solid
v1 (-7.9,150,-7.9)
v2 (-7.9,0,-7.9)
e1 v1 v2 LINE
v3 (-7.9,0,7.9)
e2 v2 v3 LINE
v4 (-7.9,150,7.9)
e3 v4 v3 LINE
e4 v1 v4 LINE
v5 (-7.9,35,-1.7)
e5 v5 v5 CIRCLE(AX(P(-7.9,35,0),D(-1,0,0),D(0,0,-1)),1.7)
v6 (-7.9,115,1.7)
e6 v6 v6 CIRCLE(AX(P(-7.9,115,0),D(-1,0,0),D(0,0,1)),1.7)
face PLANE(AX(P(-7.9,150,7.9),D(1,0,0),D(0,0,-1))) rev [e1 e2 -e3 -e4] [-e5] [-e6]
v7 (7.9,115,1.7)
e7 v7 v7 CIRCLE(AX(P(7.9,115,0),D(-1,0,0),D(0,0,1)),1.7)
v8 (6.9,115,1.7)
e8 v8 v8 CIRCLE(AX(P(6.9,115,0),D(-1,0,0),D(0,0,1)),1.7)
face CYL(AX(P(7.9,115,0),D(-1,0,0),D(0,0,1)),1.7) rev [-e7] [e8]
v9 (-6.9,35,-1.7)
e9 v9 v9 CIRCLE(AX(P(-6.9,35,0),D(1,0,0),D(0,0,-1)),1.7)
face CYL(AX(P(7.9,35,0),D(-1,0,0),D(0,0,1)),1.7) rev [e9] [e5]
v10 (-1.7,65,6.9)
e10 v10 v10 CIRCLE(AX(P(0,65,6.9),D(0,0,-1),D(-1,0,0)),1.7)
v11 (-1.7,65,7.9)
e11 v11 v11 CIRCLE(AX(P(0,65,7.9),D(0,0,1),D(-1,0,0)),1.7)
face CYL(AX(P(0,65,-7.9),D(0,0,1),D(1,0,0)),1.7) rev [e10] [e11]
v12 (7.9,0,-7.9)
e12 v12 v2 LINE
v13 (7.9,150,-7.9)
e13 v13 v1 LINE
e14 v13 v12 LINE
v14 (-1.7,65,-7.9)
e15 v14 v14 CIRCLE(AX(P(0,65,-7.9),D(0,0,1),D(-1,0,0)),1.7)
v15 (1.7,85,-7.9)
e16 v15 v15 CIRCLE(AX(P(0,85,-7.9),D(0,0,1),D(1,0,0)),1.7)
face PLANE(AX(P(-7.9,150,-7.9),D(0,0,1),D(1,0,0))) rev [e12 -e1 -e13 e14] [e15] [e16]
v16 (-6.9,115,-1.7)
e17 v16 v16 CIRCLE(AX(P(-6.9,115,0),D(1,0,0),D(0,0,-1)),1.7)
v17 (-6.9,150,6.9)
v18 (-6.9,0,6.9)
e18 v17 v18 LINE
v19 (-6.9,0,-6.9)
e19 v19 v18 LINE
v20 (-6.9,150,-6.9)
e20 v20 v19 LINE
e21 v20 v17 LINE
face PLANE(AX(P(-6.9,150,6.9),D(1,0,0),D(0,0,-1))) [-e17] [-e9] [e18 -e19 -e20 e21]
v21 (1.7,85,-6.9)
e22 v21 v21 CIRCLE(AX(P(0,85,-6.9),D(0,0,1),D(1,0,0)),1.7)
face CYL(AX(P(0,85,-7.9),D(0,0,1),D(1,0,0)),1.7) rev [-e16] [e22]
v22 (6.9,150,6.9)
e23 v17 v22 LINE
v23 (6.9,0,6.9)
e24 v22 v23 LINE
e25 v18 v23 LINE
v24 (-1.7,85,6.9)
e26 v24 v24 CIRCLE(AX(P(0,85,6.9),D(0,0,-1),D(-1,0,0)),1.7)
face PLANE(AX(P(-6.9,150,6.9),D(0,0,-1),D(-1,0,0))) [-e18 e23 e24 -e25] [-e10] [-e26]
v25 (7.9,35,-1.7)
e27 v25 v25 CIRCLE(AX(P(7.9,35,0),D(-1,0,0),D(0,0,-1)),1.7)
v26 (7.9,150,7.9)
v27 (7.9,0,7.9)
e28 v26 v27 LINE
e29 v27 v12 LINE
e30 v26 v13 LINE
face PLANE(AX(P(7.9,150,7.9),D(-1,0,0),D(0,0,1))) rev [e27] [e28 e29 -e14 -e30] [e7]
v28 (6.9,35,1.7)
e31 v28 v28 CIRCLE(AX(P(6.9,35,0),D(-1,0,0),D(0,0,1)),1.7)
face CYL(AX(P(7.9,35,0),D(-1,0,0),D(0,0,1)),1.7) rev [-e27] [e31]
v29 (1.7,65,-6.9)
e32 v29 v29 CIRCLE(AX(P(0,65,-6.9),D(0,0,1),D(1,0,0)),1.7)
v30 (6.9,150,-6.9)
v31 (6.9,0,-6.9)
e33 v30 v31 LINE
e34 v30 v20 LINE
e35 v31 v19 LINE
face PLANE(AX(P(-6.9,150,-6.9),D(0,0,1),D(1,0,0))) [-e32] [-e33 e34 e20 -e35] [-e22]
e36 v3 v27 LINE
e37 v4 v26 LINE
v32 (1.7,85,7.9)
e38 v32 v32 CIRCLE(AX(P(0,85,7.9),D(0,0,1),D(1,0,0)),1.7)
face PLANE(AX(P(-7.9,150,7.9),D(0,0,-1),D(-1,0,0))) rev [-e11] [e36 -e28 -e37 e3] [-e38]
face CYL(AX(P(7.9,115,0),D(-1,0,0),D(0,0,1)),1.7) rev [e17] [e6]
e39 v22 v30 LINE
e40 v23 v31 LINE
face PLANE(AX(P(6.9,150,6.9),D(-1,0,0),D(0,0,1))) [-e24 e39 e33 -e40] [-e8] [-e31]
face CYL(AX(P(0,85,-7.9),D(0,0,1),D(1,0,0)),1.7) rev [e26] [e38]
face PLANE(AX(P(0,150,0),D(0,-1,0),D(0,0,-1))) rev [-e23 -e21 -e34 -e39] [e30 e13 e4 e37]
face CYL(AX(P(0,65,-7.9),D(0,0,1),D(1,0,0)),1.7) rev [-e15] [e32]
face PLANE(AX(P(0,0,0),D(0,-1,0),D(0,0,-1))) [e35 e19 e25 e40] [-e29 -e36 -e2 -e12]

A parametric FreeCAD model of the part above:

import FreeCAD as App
import Part
import Sketcher
Q = App.Units.Quantity


def add_polygon(sketch, points):
    """Adds a closed chain of lines whose ends are joined by coincident constraints."""
    first, n = sketch.GeometryCount, len(points)
    for a, b in zip(points, points[1:] + points[:1]):
        sketch.addGeometry(Part.LineSegment(App.Vector(*a, 0), App.Vector(*b, 0)), False)
    for i in range(n):
        sketch.addConstraint(Sketcher.Constraint("Coincident", first + i, 2, first + (i + 1) % n, 1))

doc = App.newDocument("Part")
params = doc.addObject("Spreadsheet::Sheet", "Params")
for row, (alias, value) in enumerate([
    ("sketch1_width", "15.8 mm"),
    ("sketch1_width2", "13.8 mm"),
    ("pad1_length", "150 mm"),
    ("sketch2_diameter", "3.4 mm"),
    ("sketch3_diameter", "3.4 mm"),
], start=1):
    params.set(f"A{row}", alias)
    params.set(f"B{row}", "=" + value)
    params.setAlias(f"B{row}", alias)

body = doc.addObject("PartDesign::Body", "Body")

# Sketch on XZ plane
sketch1 = doc.addObject("Sketcher::SketchObject", "Sketch")
body.addObject(sketch1)
sketch1.AttachmentSupport = (doc.XZ_Plane, [""])
sketch1.MapMode = "FlatFace"
add_polygon(sketch1, [(-8, -8), (-8, 8), (8, 8), (8, -8)])  # lines 0-3
add_polygon(sketch1, [(7, 7), (-7, 7), (-7, -7), (7, -7)])  # lines 4-7
sketch1.addConstraint(Sketcher.Constraint("Vertical", 0))
sketch1.addConstraint(Sketcher.Constraint("Horizontal", 1))
sketch1.addConstraint(Sketcher.Constraint("Vertical", 2))
sketch1.addConstraint(Sketcher.Constraint("Horizontal", 3))
sketch1.addConstraint(Sketcher.Constraint("Horizontal", 4))
sketch1.addConstraint(Sketcher.Constraint("Vertical", 5))
sketch1.addConstraint(Sketcher.Constraint("Horizontal", 6))
sketch1.addConstraint(Sketcher.Constraint("Vertical", 7))
sketch1.addConstraint(Sketcher.Constraint("Symmetric", 0, 2, 2, 2, -1, 1))
sketch1.addConstraint(Sketcher.Constraint("Symmetric", 4, 2, 6, 2, -1, 1))
sketch1.addConstraint(Sketcher.Constraint("Equal", 3, 0))
sketch1.addConstraint(Sketcher.Constraint("Equal", 6, 5))
sketch1.addConstraint(Sketcher.Constraint("DistanceX", 1, 1, 1, 2, Q("15.8 mm")))
sketch1.addConstraint(Sketcher.Constraint("DistanceX", 4, 2, 4, 1, Q("13.8 mm")))
sketch1.setExpression("Constraints[20]", "Params.sketch1_width")
sketch1.setExpression("Constraints[21]", "Params.sketch1_width2")
pad1 = doc.addObject("PartDesign::Pad", "Pad")
body.addObject(pad1)
pad1.Profile = sketch1
pad1.setExpression("Length", "Params.pad1_length")
pad1.Reversed = True

# Sketch on YZ plane
sketch2 = doc.addObject("Sketcher::SketchObject", "Sketch001")
body.addObject(sketch2)
sketch2.AttachmentSupport = (doc.YZ_Plane, [""])
sketch2.MapMode = "FlatFace"
sketch2.AttachmentOffset = App.Placement(App.Vector(0, 0, -7.9), App.Rotation())
sketch2.addGeometry(Part.Circle(App.Vector(115, 0, 0), App.Vector(0, 0, 1), 1.7), False)
sketch2.addGeometry(Part.Circle(App.Vector(35, 0, 0), App.Vector(0, 0, 1), 1.7), False)
sketch2.addConstraint(Sketcher.Constraint("Equal", 0, 1))
sketch2.addConstraint(Sketcher.Constraint("PointOnObject", 0, 3, -1))
sketch2.addConstraint(Sketcher.Constraint("PointOnObject", 1, 3, -1))
sketch2.addConstraint(Sketcher.Constraint("Diameter", 0, Q("3.4 mm")))
sketch2.addConstraint(Sketcher.Constraint("DistanceX", -1, 1, 0, 3, Q("115 mm")))
sketch2.addConstraint(Sketcher.Constraint("DistanceX", -1, 1, 1, 3, Q("35 mm")))
sketch2.setExpression("Constraints[3]", "Params.sketch2_diameter")
pocket1 = doc.addObject("PartDesign::Pocket", "Pocket")
body.addObject(pocket1)
pocket1.Profile = sketch2
pocket1.Type = "ThroughAll"
pocket1.Reversed = True

# Sketch on XY plane
sketch3 = doc.addObject("Sketcher::SketchObject", "Sketch002")
body.addObject(sketch3)
sketch3.AttachmentSupport = (doc.XY_Plane, [""])
sketch3.MapMode = "FlatFace"
sketch3.AttachmentOffset = App.Placement(App.Vector(0, 0, 7.9), App.Rotation())
sketch3.addGeometry(Part.Circle(App.Vector(0, 85, 0), App.Vector(0, 0, 1), 1.7), False)
sketch3.addGeometry(Part.Circle(App.Vector(0, 65, 0), App.Vector(0, 0, 1), 1.7), False)
sketch3.addConstraint(Sketcher.Constraint("Equal", 0, 1))
sketch3.addConstraint(Sketcher.Constraint("PointOnObject", 0, 3, -2))
sketch3.addConstraint(Sketcher.Constraint("PointOnObject", 1, 3, -2))
sketch3.addConstraint(Sketcher.Constraint("Diameter", 0, Q("3.4 mm")))
sketch3.addConstraint(Sketcher.Constraint("DistanceY", -1, 1, 0, 3, Q("85 mm")))
sketch3.addConstraint(Sketcher.Constraint("DistanceY", -1, 1, 1, 3, Q("65 mm")))
sketch3.setExpression("Constraints[3]", "Params.sketch3_diameter")
pocket2 = doc.addObject("PartDesign::Pocket", "Pocket001")
body.addObject(pocket2)
pocket2.Profile = sketch3
pocket2.Type = "ThroughAll"

doc.recompute()
